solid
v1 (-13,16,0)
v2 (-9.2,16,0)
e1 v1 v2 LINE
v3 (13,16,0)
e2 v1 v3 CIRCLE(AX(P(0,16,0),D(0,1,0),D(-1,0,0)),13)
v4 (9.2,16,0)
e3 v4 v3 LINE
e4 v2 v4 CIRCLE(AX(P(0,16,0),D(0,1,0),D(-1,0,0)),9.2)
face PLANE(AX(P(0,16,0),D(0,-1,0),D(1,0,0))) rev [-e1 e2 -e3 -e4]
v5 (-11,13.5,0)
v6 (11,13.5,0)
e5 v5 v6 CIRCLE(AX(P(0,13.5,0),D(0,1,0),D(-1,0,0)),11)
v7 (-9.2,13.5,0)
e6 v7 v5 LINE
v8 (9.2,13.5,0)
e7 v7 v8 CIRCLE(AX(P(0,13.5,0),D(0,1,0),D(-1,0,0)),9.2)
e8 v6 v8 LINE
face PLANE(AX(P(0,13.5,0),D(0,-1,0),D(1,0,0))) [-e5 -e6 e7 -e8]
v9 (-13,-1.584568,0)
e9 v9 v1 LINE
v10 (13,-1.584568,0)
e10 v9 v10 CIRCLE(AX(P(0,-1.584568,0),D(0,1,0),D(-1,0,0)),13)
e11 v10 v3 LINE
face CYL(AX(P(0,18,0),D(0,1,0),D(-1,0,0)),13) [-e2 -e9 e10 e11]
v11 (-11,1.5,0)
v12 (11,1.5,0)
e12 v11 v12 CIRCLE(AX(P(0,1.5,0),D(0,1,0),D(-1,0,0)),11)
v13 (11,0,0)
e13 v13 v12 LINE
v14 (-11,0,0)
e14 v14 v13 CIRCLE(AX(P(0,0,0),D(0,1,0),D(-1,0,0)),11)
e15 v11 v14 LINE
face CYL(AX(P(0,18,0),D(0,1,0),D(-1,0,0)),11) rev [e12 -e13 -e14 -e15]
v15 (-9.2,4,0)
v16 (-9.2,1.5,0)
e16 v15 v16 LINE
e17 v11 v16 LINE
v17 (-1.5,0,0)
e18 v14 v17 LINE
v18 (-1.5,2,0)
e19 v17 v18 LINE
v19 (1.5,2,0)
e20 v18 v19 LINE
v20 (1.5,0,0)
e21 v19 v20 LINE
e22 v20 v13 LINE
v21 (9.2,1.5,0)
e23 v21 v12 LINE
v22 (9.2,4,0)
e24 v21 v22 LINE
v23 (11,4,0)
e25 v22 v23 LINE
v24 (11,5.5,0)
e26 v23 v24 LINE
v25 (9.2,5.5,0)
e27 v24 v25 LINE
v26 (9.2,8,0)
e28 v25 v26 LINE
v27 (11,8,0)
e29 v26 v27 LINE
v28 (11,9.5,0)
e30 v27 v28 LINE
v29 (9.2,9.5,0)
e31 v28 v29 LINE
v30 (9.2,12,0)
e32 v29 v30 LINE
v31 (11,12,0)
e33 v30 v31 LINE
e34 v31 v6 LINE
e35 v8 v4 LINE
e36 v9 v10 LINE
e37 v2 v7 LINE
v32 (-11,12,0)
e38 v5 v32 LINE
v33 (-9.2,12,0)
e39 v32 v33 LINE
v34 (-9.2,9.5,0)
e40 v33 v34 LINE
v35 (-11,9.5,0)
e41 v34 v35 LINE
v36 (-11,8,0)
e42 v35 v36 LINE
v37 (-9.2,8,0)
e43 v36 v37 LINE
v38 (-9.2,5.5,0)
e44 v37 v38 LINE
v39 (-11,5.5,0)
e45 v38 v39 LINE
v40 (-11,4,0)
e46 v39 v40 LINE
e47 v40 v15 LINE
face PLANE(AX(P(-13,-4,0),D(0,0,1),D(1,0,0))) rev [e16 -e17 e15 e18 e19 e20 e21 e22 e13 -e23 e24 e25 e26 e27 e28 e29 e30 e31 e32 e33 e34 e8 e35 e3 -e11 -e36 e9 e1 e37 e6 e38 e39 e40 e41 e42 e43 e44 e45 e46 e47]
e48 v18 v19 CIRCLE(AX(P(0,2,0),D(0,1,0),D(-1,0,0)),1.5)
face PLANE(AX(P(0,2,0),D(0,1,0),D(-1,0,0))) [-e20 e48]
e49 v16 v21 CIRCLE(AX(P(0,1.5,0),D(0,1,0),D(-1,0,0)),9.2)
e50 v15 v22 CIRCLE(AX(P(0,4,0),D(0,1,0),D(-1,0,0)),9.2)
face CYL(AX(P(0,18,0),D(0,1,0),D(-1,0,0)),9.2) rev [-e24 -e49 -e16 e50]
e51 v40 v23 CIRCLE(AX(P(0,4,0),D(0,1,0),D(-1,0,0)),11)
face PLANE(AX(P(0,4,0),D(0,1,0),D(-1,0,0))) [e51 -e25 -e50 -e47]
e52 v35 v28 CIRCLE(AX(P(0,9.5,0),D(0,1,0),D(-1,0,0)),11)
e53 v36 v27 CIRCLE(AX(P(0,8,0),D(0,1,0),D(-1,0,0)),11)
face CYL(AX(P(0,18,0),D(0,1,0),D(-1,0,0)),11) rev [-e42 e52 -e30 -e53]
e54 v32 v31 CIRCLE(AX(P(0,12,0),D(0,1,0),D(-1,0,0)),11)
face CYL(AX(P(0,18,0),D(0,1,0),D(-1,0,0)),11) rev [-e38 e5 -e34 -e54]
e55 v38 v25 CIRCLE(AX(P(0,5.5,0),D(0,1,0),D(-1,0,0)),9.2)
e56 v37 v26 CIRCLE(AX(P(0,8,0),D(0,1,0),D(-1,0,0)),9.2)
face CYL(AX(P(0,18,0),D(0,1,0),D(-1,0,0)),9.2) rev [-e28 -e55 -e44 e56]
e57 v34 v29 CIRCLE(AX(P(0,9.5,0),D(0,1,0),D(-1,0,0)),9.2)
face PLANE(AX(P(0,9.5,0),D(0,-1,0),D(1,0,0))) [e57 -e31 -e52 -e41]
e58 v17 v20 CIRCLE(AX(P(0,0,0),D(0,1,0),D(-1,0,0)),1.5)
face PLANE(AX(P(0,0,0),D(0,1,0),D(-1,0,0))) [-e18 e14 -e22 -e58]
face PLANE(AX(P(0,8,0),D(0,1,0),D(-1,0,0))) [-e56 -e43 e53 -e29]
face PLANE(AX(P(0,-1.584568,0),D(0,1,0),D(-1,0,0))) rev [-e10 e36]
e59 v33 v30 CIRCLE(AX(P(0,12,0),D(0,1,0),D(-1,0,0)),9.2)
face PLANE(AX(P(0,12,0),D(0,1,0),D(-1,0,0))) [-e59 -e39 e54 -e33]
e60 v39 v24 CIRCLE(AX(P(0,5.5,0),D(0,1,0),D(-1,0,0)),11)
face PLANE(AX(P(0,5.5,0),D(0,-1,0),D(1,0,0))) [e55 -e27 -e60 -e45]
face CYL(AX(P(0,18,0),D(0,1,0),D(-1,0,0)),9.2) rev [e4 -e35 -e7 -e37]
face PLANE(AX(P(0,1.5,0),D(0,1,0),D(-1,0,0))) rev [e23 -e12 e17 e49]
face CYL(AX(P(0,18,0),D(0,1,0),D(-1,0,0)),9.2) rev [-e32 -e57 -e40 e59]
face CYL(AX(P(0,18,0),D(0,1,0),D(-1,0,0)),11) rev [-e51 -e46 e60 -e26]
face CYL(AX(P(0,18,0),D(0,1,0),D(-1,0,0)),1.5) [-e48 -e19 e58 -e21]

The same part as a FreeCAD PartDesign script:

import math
import FreeCAD as App
import Part
import Sketcher

doc = App.newDocument("Part")
params = doc.addObject("Spreadsheet::Sheet", "Params")
for row, (alias, value) in enumerate([
    ("sketch1_width", "13 mm"),
    ("sketch1_height", "2 mm"),
    ("sketch1_width2", "1.5 mm"),
    ("sketch1_width3", "3.8 mm"),
    ("sketch1_width4", "1.8 mm"),
    ("revolution_angle", "360 deg"),
    ("sketch2_radius", "13 mm"),
    ("pocket1_length", "20 mm"),
], start=1):
    params.set(f"A{row}", alias)
    params.set(f"B{row}", "=" + value)
    params.setAlias(f"B{row}", alias)

body = doc.addObject("PartDesign::Body", "Body")

# Sketch on XY plane
sketch1 = body.newObject("Sketcher::SketchObject", "Sketch")
sketch1.AttachmentSupport = (doc.getObject("XY_Plane"), [""])
sketch1.MapMode = "FlatFace"
sketch1.addGeometry([
    Part.LineSegment(App.Vector(1.5, 2, 0), App.Vector(0, 2, 0)),  # 0
    Part.LineSegment(App.Vector(0, 2, 0), App.Vector(0, -1.6, 0)),  # 1
    Part.LineSegment(App.Vector(0, -1.6, 0), App.Vector(13, -1.6, 0)),  # 2
    Part.LineSegment(App.Vector(13, -1.6, 0), App.Vector(13, 16, 0)),  # 3
    Part.LineSegment(App.Vector(13, 16, 0), App.Vector(9.2, 16, 0)),  # 4
    Part.LineSegment(App.Vector(9.2, 16, 0), App.Vector(9.2, 13.5, 0)),  # 5
    Part.LineSegment(App.Vector(9.2, 13.5, 0), App.Vector(11, 13.5, 0)),  # 6
    Part.LineSegment(App.Vector(11, 13.5, 0), App.Vector(11, 12, 0)),  # 7
    Part.LineSegment(App.Vector(11, 12, 0), App.Vector(9.2, 12, 0)),  # 8
    Part.LineSegment(App.Vector(9.2, 12, 0), App.Vector(9.2, 9.5, 0)),  # 9
    Part.LineSegment(App.Vector(9.2, 9.5, 0), App.Vector(11, 9.5, 0)),  # 10
    Part.LineSegment(App.Vector(11, 9.5, 0), App.Vector(11, 8, 0)),  # 11
    Part.LineSegment(App.Vector(11, 8, 0), App.Vector(9.2, 8, 0)),  # 12
    Part.LineSegment(App.Vector(9.2, 8, 0), App.Vector(9.2, 5.5, 0)),  # 13
    Part.LineSegment(App.Vector(9.2, 5.5, 0), App.Vector(11, 5.5, 0)),  # 14
    Part.LineSegment(App.Vector(11, 5.5, 0), App.Vector(11, 4, 0)),  # 15
    Part.LineSegment(App.Vector(11, 4, 0), App.Vector(9.2, 4, 0)),  # 16
    Part.LineSegment(App.Vector(9.2, 4, 0), App.Vector(9.2, 1.5, 0)),  # 17
    Part.LineSegment(App.Vector(9.2, 1.5, 0), App.Vector(11, 1.5, 0)),  # 18
    Part.LineSegment(App.Vector(11, 1.5, 0), App.Vector(11, 0, 0)),  # 19
    Part.LineSegment(App.Vector(11, 0, 0), App.Vector(1.5, 0, 0)),  # 20
    Part.LineSegment(App.Vector(1.5, 0, 0), App.Vector(1.5, 2, 0)),  # 21
], False)
sketch1.addConstraint([
    Sketcher.Constraint("Coincident", 0, 2, 1, 1),
    Sketcher.Constraint("Coincident", 1, 2, 2, 1),
    Sketcher.Constraint("Coincident", 2, 2, 3, 1),
    Sketcher.Constraint("Coincident", 3, 2, 4, 1),
    Sketcher.Constraint("Coincident", 4, 2, 5, 1),
    Sketcher.Constraint("Coincident", 5, 2, 6, 1),
    Sketcher.Constraint("Coincident", 6, 2, 7, 1),
    Sketcher.Constraint("Coincident", 7, 2, 8, 1),
    Sketcher.Constraint("Coincident", 8, 2, 9, 1),
    Sketcher.Constraint("Coincident", 9, 2, 10, 1),
    Sketcher.Constraint("Coincident", 10, 2, 11, 1),
    Sketcher.Constraint("Coincident", 11, 2, 12, 1),
    Sketcher.Constraint("Coincident", 12, 2, 13, 1),
    Sketcher.Constraint("Coincident", 13, 2, 14, 1),
    Sketcher.Constraint("Coincident", 14, 2, 15, 1),
    Sketcher.Constraint("Coincident", 15, 2, 16, 1),
    Sketcher.Constraint("Coincident", 16, 2, 17, 1),
    Sketcher.Constraint("Coincident", 17, 2, 18, 1),
    Sketcher.Constraint("Coincident", 18, 2, 19, 1),
    Sketcher.Constraint("Coincident", 19, 2, 20, 1),
    Sketcher.Constraint("Coincident", 20, 2, 21, 1),
    Sketcher.Constraint("Coincident", 21, 2, 0, 1),
    Sketcher.Constraint("Horizontal", 0),
    Sketcher.Constraint("Vertical", 1),
    Sketcher.Constraint("Horizontal", 2),
    Sketcher.Constraint("Vertical", 3),
    Sketcher.Constraint("Horizontal", 4),
    Sketcher.Constraint("Vertical", 5),
    Sketcher.Constraint("Horizontal", 6),
    Sketcher.Constraint("Vertical", 7),
    Sketcher.Constraint("Horizontal", 8),
    Sketcher.Constraint("Vertical", 9),
    Sketcher.Constraint("Horizontal", 10),
    Sketcher.Constraint("Vertical", 11),
    Sketcher.Constraint("Horizontal", 12),
    Sketcher.Constraint("Vertical", 13),
    Sketcher.Constraint("Horizontal", 14),
    Sketcher.Constraint("Vertical", 15),
    Sketcher.Constraint("Horizontal", 16),
    Sketcher.Constraint("Vertical", 17),
    Sketcher.Constraint("Horizontal", 18),
    Sketcher.Constraint("Vertical", 19),
    Sketcher.Constraint("Horizontal", 20),
    Sketcher.Constraint("Vertical", 21),
    Sketcher.Constraint("PointOnObject", 0, 2, -2),
    Sketcher.Constraint("PointOnObject", 19, 2, -1),
    Sketcher.Constraint("Vertical", 5, 2, 8, 2),
    Sketcher.Constraint("Vertical", 7, 2, 10, 2),
    Sketcher.Constraint("Vertical", 9, 2, 12, 2),
    Sketcher.Constraint("Vertical", 11, 2, 14, 2),
    Sketcher.Constraint("Vertical", 13, 2, 16, 2),
    Sketcher.Constraint("Vertical", 15, 2, 18, 2),
    Sketcher.Constraint("Equal", 0, 7),
    Sketcher.Constraint("Equal", 5, 9),
    Sketcher.Constraint("Equal", 7, 11),
    Sketcher.Constraint("Equal", 9, 13),
    Sketcher.Constraint("Equal", 11, 15),
    Sketcher.Constraint("Equal", 13, 17),
    Sketcher.Constraint("Equal", 15, 19),
    Sketcher.Constraint("DistanceX", 2, 1, 2, 2, 13.0),
    Sketcher.Constraint("DistanceY", 21, 1, 21, 2, 2.0),
    Sketcher.Constraint("DistanceX", 0, 2, 0, 1, 1.5),
    Sketcher.Constraint("DistanceX", 4, 2, 4, 1, 3.8),
    Sketcher.Constraint("DistanceX", 6, 1, 6, 2, 1.8),
    Sketcher.Constraint("DistanceY", 5, 2, 5, 1, 2.5),
    Sketcher.Constraint("DistanceY", 1, 2, 1, 1, 3.584568),
])
sketch1.setExpression("Constraints[59]", "Params.sketch1_width")
sketch1.setExpression("Constraints[60]", "Params.sketch1_height")
sketch1.setExpression("Constraints[61]", "Params.sketch1_width2")
sketch1.setExpression("Constraints[62]", "Params.sketch1_width3")
sketch1.setExpression("Constraints[63]", "Params.sketch1_width4")
revolution = body.newObject("PartDesign::Revolution", "Revolution")
revolution.Profile = sketch1
revolution.ReferenceAxis = (sketch1, ["V_Axis"])
revolution.setExpression("Angle", "Params.revolution_angle")

# Sketch on XZ plane
sketch2 = body.newObject("Sketcher::SketchObject", "Sketch001")
sketch2.AttachmentSupport = (doc.getObject("XZ_Plane"), [""])
sketch2.MapMode = "FlatFace"
sketch2.AttachmentOffset = App.Placement(App.Vector(0, 0, 4), App.Rotation())
sketch2.addGeometry([
    Part.LineSegment(App.Vector(-13, 0, 0), App.Vector(13, 0, 0)),
    Part.ArcOfCircle(Part.Circle(App.Vector(0, 0, 0), App.Vector(0, 0, 1), 13), math.radians(180), math.radians(360)),
], False)
sketch2.addConstraint([
    Sketcher.Constraint("Coincident", 0, 1, 1, 1),
    Sketcher.Constraint("Coincident", 1, 2, 0, 2),
    Sketcher.Constraint("Horizontal", 0),
    Sketcher.Constraint("Coincident", 1, 3, -1, 1),
    Sketcher.Constraint("PointOnObject", 0, 1, -1),
    Sketcher.Constraint("Radius", 1, 13.0),
])
sketch2.setExpression("Constraints[5]", "Params.sketch2_radius")
pocket1 = body.newObject("PartDesign::Pocket", "Pocket")
pocket1.Profile = sketch2
pocket1.setExpression("Length", "Params.pocket1_length")

doc.recompute()
